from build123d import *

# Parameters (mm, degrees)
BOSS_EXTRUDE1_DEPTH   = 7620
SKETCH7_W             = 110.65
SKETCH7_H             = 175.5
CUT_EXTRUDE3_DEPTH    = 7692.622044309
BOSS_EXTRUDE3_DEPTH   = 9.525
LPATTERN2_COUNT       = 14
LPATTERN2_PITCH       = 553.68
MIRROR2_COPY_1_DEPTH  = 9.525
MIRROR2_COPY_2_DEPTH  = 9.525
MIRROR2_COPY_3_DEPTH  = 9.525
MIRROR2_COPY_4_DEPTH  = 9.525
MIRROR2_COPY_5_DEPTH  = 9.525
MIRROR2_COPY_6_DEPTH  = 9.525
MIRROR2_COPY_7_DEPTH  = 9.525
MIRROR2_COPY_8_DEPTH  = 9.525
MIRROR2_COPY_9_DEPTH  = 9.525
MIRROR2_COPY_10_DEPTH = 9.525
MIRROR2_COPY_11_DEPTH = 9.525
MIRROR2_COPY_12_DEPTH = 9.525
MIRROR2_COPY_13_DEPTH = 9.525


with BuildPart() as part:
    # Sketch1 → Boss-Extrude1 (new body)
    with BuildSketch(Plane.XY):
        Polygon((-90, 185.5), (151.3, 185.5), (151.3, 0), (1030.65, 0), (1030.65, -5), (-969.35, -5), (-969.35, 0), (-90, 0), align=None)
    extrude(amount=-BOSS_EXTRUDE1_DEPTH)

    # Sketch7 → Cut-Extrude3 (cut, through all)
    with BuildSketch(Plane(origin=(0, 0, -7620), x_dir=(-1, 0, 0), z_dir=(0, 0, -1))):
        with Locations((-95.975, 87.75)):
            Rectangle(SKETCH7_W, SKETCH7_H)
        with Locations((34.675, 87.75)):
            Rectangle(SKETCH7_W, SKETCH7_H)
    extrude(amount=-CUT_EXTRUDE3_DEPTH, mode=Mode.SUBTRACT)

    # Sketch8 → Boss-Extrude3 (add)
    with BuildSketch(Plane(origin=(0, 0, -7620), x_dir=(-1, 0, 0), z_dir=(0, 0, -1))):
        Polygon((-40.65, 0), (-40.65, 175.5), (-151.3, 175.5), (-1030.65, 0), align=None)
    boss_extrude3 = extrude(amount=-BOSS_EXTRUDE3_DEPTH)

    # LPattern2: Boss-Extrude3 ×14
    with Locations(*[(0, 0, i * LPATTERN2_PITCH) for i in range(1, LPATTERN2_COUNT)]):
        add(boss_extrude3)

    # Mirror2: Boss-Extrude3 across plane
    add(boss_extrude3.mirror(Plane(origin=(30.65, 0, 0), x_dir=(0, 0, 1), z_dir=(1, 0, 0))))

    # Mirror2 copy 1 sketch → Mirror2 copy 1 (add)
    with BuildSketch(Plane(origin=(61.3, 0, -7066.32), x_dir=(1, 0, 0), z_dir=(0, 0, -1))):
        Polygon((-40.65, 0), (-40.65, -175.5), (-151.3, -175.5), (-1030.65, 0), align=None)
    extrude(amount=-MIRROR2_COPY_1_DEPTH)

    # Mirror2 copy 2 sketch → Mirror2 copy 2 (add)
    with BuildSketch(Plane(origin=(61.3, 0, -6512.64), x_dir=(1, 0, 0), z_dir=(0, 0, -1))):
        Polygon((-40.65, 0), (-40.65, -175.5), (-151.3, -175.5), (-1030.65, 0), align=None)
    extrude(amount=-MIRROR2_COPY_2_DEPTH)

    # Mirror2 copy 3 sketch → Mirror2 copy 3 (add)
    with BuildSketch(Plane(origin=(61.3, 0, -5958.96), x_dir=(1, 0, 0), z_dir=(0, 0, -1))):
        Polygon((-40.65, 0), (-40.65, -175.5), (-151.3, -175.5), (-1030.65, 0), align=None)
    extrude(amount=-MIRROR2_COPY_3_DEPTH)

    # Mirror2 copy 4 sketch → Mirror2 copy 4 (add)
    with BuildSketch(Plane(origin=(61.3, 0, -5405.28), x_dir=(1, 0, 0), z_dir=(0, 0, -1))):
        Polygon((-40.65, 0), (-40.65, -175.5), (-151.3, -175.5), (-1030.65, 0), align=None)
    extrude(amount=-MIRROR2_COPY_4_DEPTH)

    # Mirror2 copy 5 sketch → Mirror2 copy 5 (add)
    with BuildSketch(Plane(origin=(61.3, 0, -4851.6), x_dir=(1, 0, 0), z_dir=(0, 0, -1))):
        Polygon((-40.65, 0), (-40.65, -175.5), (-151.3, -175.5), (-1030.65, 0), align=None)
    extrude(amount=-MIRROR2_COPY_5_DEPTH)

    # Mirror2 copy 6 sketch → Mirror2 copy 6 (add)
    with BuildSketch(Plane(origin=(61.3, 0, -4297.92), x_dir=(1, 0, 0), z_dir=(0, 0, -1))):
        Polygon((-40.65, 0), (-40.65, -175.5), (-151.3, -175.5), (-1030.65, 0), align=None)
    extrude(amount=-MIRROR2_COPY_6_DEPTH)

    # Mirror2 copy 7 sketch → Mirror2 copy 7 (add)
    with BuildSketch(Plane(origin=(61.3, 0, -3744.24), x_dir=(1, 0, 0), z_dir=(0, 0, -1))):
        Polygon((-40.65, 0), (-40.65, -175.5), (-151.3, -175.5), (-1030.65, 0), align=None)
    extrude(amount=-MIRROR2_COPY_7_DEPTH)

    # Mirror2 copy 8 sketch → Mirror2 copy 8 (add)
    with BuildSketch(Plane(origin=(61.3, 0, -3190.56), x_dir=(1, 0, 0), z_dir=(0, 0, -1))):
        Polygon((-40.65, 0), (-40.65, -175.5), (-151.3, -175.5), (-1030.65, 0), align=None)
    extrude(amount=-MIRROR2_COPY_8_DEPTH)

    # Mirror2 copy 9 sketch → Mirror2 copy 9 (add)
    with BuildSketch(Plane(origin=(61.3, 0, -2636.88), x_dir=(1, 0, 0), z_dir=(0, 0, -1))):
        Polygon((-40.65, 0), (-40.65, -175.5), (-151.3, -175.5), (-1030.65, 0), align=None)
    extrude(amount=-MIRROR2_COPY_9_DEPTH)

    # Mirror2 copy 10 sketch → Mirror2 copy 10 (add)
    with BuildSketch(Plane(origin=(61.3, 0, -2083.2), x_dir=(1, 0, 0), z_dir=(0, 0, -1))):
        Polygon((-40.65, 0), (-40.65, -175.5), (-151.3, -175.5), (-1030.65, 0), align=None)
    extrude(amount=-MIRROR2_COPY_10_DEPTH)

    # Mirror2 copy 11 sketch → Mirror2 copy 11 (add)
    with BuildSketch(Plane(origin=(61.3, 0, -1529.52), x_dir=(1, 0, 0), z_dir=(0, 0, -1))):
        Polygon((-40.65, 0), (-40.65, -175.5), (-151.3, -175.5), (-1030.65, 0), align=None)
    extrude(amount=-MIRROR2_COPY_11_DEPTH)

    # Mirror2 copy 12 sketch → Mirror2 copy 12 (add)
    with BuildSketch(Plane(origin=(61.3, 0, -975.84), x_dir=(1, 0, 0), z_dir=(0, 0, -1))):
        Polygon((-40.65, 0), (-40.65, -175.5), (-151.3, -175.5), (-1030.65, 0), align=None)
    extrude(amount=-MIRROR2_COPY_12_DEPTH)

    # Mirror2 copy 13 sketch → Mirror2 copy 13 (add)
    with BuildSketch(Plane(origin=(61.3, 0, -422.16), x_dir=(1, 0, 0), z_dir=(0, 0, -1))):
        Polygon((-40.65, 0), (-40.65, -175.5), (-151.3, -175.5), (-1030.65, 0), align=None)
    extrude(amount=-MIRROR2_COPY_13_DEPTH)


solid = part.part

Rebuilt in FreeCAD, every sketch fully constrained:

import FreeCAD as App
import Part
import Sketcher

V = App.Vector


def add_polygon(sketch, points):
    """Adds a closed chain of lines whose ends are joined by coincident constraints."""
    first, n = sketch.GeometryCount, len(points)
    for a, b in zip(points, points[1:] + points[:1]):
        sketch.addGeometry(Part.LineSegment(App.Vector(*a, 0), App.Vector(*b, 0)), False)
    for i in range(n):
        sketch.addConstraint(Sketcher.Constraint("Coincident", first + i, 2, first + (i + 1) % n, 1))

doc = App.newDocument("Part")
body = doc.addObject("PartDesign::Body", "Body")

# Sketch on XY plane
sketch1 = doc.addObject("Sketcher::SketchObject", "Sketch")
body.addObject(sketch1)
sketch1.AttachmentSupport = (doc.XY_Plane, [""])
sketch1.MapMode = "FlatFace"
add_polygon(sketch1, [(151, 186), (-90, 186), (-90, 0), (-969, 0), (-969, -5), (1031, -5), (1031, 0), (151, 0)])  # lines 0-7
sketch1.addConstraint([
    Sketcher.Constraint("Horizontal", 0),
    Sketcher.Constraint("Vertical", 1),
    Sketcher.Constraint("Horizontal", 2),
    Sketcher.Constraint("Vertical", 3),
    Sketcher.Constraint("Horizontal", 4),
    Sketcher.Constraint("Vertical", 5),
    Sketcher.Constraint("Horizontal", 6),
    Sketcher.Constraint("Vertical", 7),
    Sketcher.Constraint("PointOnObject", 1, 2, -1),
    Sketcher.Constraint("PointOnObject", 5, 2, -1),
    Sketcher.Constraint("Equal", 2, 6),
    Sketcher.Constraint("DistanceX", 4, 1, 4, 2, 2000.0),
    Sketcher.Constraint("DistanceY", 3, 2, 3, 1, 5.0),
    Sketcher.Constraint("DistanceX", 0, 2, 0, 1, 241.3),
    Sketcher.Constraint("DistanceY", 1, 2, 1, 1, 185.5),
    Sketcher.Constraint("DistanceX", 0, 2, -1, 1, 90.0),
])
pad1 = doc.addObject("PartDesign::Pad", "Pad")
body.addObject(pad1)
pad1.Profile = sketch1
pad1.Length = 7620
pad1.Reversed = True

# Sketch on XY plane
sketch2 = doc.addObject("Sketcher::SketchObject", "Sketch001")
body.addObject(sketch2)
sketch2.AttachmentSupport = (doc.XY_Plane, [""])
sketch2.MapMode = "FlatFace"
sketch2.AttachmentOffset = App.Placement(V(0, 0, -7620), App.Rotation())
add_polygon(sketch2, [(151, 176), (151, 0), (41, 0), (41, 176)])  # lines 0-3
add_polygon(sketch2, [(21, 176), (21, 0), (-90, 0), (-90, 176)])  # lines 4-7
sketch2.addConstraint([
    Sketcher.Constraint("Vertical", 0),
    Sketcher.Constraint("Horizontal", 1),
    Sketcher.Constraint("Vertical", 2),
    Sketcher.Constraint("Horizontal", 3),
    Sketcher.Constraint("Vertical", 4),
    Sketcher.Constraint("Horizontal", 5),
    Sketcher.Constraint("Vertical", 6),
    Sketcher.Constraint("Horizontal", 7),
    Sketcher.Constraint("PointOnObject", 0, 2, -1),
    Sketcher.Constraint("PointOnObject", 4, 2, -1),
    Sketcher.Constraint("Horizontal", 3, 2, 6, 2),
    Sketcher.Constraint("Equal", 3, 5),
    Sketcher.Constraint("DistanceY", 0, 2, 0, 1, 175.5),
    Sketcher.Constraint("DistanceX", 5, 2, -1, 1, 90.0),
    Sketcher.Constraint("DistanceX", 4, 2, 1, 2, 20.0),
    Sketcher.Constraint("DistanceX", 1, 2, 1, 1, 110.65),
])
pocket1 = doc.addObject("PartDesign::Pocket", "Pocket")
body.addObject(pocket1)
pocket1.Profile = sketch2
pocket1.Type = "ThroughAll"
pocket1.Reversed = True

# Sketch on XY plane
sketch3 = doc.addObject("Sketcher::SketchObject", "Sketch002")
body.addObject(sketch3)
sketch3.AttachmentSupport = (doc.XY_Plane, [""])
sketch3.MapMode = "FlatFace"
sketch3.AttachmentOffset = App.Placement(V(0, 0, -7620), App.Rotation())
add_polygon(sketch3, [(41, 0), (41, 176), (151, 176), (1031, 0)])  # lines 0-3
sketch3.addConstraint([
    Sketcher.Constraint("Vertical", 0),
    Sketcher.Constraint("Horizontal", 1),
    Sketcher.Constraint("Horizontal", 3),
    Sketcher.Constraint("PointOnObject", 2, 2, -1),
    Sketcher.Constraint("DistanceX", 3, 2, 3, 1, 990.0),
    Sketcher.Constraint("DistanceY", 0, 1, 0, 2, 175.5),
    Sketcher.Constraint("DistanceX", 1, 1, 1, 2, 110.65),
    Sketcher.Constraint("DistanceX", -1, 1, 1, 2, 151.3),
])
pad2 = doc.addObject("PartDesign::Pad", "Pad001")
body.addObject(pad2)
pad2.Profile = sketch3
pad2.Length = 9.525
doc.recompute()

linearpattern = doc.addObject("PartDesign::LinearPattern", "LinearPattern")
body.addObject(linearpattern)
linearpattern.Originals = [pad2]
linearpattern.Direction = (doc.Z_Axis, [""])
linearpattern.Mode = "offset"
linearpattern.Offset = 553.68
linearpattern.Occurrences = 14
body.Tip = linearpattern
doc.recompute()

datumplane = doc.addObject("PartDesign::Plane", "DatumPlane")
body.addObject(datumplane)
datumplane.AttachmentSupport = (doc.YZ_Plane, [""])
datumplane.MapMode = "FlatFace"
datumplane.AttachmentOffset = App.Placement(V(0, 0, 30.65), App.Rotation())
mirrored = doc.addObject("PartDesign::Mirrored", "Mirrored")
body.addObject(mirrored)
mirrored.Originals = [pad2]
mirrored.MirrorPlane = (datumplane, [""])
body.Tip = mirrored

# Sketch on XY plane
sketch4 = doc.addObject("Sketcher::SketchObject", "Sketch003")
body.addObject(sketch4)
sketch4.AttachmentSupport = (doc.XY_Plane, [""])
sketch4.MapMode = "FlatFace"
sketch4.AttachmentOffset = App.Placement(V(0, 0, -7066.32), App.Rotation())
add_polygon(sketch4, [(21, 176), (21, 0), (-969, 0), (-90, 176)])  # lines 0-3
sketch4.addConstraint([
    Sketcher.Constraint("Vertical", 0),
    Sketcher.Constraint("Horizontal", 1),
    Sketcher.Constraint("Horizontal", 3),
    Sketcher.Constraint("PointOnObject", 0, 2, -1),
    Sketcher.Constraint("DistanceX", 1, 2, 1, 1, 990.0),
    Sketcher.Constraint("DistanceY", 0, 2, 0, 1, 175.5),
    Sketcher.Constraint("DistanceX", 2, 2, -1, 1, 90.0),
    Sketcher.Constraint("DistanceX", 3, 1, 3, 2, 110.65),
])
pad3 = doc.addObject("PartDesign::Pad", "Pad002")
body.addObject(pad3)
pad3.Profile = sketch4
pad3.Length = 9.525

# Sketch on XY plane
sketch5 = doc.addObject("Sketcher::SketchObject", "Sketch004")
body.addObject(sketch5)
sketch5.AttachmentSupport = (doc.XY_Plane, [""])
sketch5.MapMode = "FlatFace"
sketch5.AttachmentOffset = App.Placement(V(0, 0, -6512.64), App.Rotation())
add_polygon(sketch5, [(21, 176), (21, 0), (-969, 0), (-90, 176)])  # lines 0-3
sketch5.addConstraint([
    Sketcher.Constraint("Vertical", 0),
    Sketcher.Constraint("Horizontal", 1),
    Sketcher.Constraint("Horizontal", 3),
    Sketcher.Constraint("PointOnObject", 0, 2, -1),
    Sketcher.Constraint("DistanceX", 1, 2, 1, 1, 990.0),
    Sketcher.Constraint("DistanceY", 0, 2, 0, 1, 175.5),
    Sketcher.Constraint("DistanceX", 2, 2, -1, 1, 90.0),
    Sketcher.Constraint("DistanceX", 3, 1, 3, 2, 110.65),
])
pad4 = doc.addObject("PartDesign::Pad", "Pad003")
body.addObject(pad4)
pad4.Profile = sketch5
pad4.Length = 9.525

# Sketch on XY plane
sketch6 = doc.addObject("Sketcher::SketchObject", "Sketch005")
body.addObject(sketch6)
sketch6.AttachmentSupport = (doc.XY_Plane, [""])
sketch6.MapMode = "FlatFace"
sketch6.AttachmentOffset = App.Placement(V(0, 0, -5958.96), App.Rotation())
add_polygon(sketch6, [(21, 176), (21, 0), (-969, 0), (-90, 176)])  # lines 0-3
sketch6.addConstraint([
    Sketcher.Constraint("Vertical", 0),
    Sketcher.Constraint("Horizontal", 1),
    Sketcher.Constraint("Horizontal", 3),
    Sketcher.Constraint("PointOnObject", 0, 2, -1),
    Sketcher.Constraint("DistanceX", 1, 2, 1, 1, 990.0),
    Sketcher.Constraint("DistanceY", 0, 2, 0, 1, 175.5),
    Sketcher.Constraint("DistanceX", 2, 2, -1, 1, 90.0),
    Sketcher.Constraint("DistanceX", 3, 1, 3, 2, 110.65),
])
pad5 = doc.addObject("PartDesign::Pad", "Pad004")
body.addObject(pad5)
pad5.Profile = sketch6
pad5.Length = 9.525

# Sketch on XY plane
sketch7 = doc.addObject("Sketcher::SketchObject", "Sketch006")
body.addObject(sketch7)
sketch7.AttachmentSupport = (doc.XY_Plane, [""])
sketch7.MapMode = "FlatFace"
sketch7.AttachmentOffset = App.Placement(V(0, 0, -5405.28), App.Rotation())
add_polygon(sketch7, [(21, 176), (21, 0), (-969, 0), (-90, 176)])  # lines 0-3
sketch7.addConstraint([
    Sketcher.Constraint("Vertical", 0),
    Sketcher.Constraint("Horizontal", 1),
    Sketcher.Constraint("Horizontal", 3),
    Sketcher.Constraint("PointOnObject", 0, 2, -1),
    Sketcher.Constraint("DistanceX", 1, 2, 1, 1, 990.0),
    Sketcher.Constraint("DistanceY", 0, 2, 0, 1, 175.5),
    Sketcher.Constraint("DistanceX", 2, 2, -1, 1, 90.0),
    Sketcher.Constraint("DistanceX", 3, 1, 3, 2, 110.65),
])
pad6 = doc.addObject("PartDesign::Pad", "Pad005")
body.addObject(pad6)
pad6.Profile = sketch7
pad6.Length = 9.525

# Sketch on XY plane
sketch8 = doc.addObject("Sketcher::SketchObject", "Sketch007")
body.addObject(sketch8)
sketch8.AttachmentSupport = (doc.XY_Plane, [""])
sketch8.MapMode = "FlatFace"
sketch8.AttachmentOffset = App.Placement(V(0, 0, -4851.6), App.Rotation())
add_polygon(sketch8, [(21, 176), (21, 0), (-969, 0), (-90, 176)])  # lines 0-3
sketch8.addConstraint([
    Sketcher.Constraint("Vertical", 0),
    Sketcher.Constraint("Horizontal", 1),
    Sketcher.Constraint("Horizontal", 3),
    Sketcher.Constraint("PointOnObject", 0, 2, -1),
    Sketcher.Constraint("DistanceX", 1, 2, 1, 1, 990.0),
    Sketcher.Constraint("DistanceY", 0, 2, 0, 1, 175.5),
    Sketcher.Constraint("DistanceX", 2, 2, -1, 1, 90.0),
    Sketcher.Constraint("DistanceX", 3, 1, 3, 2, 110.65),
])
pad7 = doc.addObject("PartDesign::Pad", "Pad006")
body.addObject(pad7)
pad7.Profile = sketch8
pad7.Length = 9.525

# Sketch on XY plane
sketch9 = doc.addObject("Sketcher::SketchObject", "Sketch008")
body.addObject(sketch9)
sketch9.AttachmentSupport = (doc.XY_Plane, [""])
sketch9.MapMode = "FlatFace"
sketch9.AttachmentOffset = App.Placement(V(0, 0, -4297.92), App.Rotation())
add_polygon(sketch9, [(21, 176), (21, 0), (-969, 0), (-90, 176)])  # lines 0-3
sketch9.addConstraint([
    Sketcher.Constraint("Vertical", 0),
    Sketcher.Constraint("Horizontal", 1),
    Sketcher.Constraint("Horizontal", 3),
    Sketcher.Constraint("PointOnObject", 0, 2, -1),
    Sketcher.Constraint("DistanceX", 1, 2, 1, 1, 990.0),
    Sketcher.Constraint("DistanceY", 0, 2, 0, 1, 175.5),
    Sketcher.Constraint("DistanceX", 2, 2, -1, 1, 90.0),
    Sketcher.Constraint("DistanceX", 3, 1, 3, 2, 110.65),
])
pad8 = doc.addObject("PartDesign::Pad", "Pad007")
body.addObject(pad8)
pad8.Profile = sketch9
pad8.Length = 9.525

# Sketch on XY plane
sketch10 = doc.addObject("Sketcher::SketchObject", "Sketch009")
body.addObject(sketch10)
sketch10.AttachmentSupport = (doc.XY_Plane, [""])
sketch10.MapMode = "FlatFace"
sketch10.AttachmentOffset = App.Placement(V(0, 0, -3744.24), App.Rotation())
add_polygon(sketch10, [(21, 176), (21, 0), (-969, 0), (-90, 176)])  # lines 0-3
sketch10.addConstraint([
    Sketcher.Constraint("Vertical", 0),
    Sketcher.Constraint("Horizontal", 1),
    Sketcher.Constraint("Horizontal", 3),
    Sketcher.Constraint("PointOnObject", 0, 2, -1),
    Sketcher.Constraint("DistanceX", 1, 2, 1, 1, 990.0),
    Sketcher.Constraint("DistanceY", 0, 2, 0, 1, 175.5),
    Sketcher.Constraint("DistanceX", 2, 2, -1, 1, 90.0),
    Sketcher.Constraint("DistanceX", 3, 1, 3, 2, 110.65),
])
pad9 = doc.addObject("PartDesign::Pad", "Pad008")
body.addObject(pad9)
pad9.Profile = sketch10
pad9.Length = 9.525

# Sketch on XY plane
sketch11 = doc.addObject("Sketcher::SketchObject", "Sketch010")
body.addObject(sketch11)
sketch11.AttachmentSupport = (doc.XY_Plane, [""])
sketch11.MapMode = "FlatFace"
sketch11.AttachmentOffset = App.Placement(V(0, 0, -3190.56), App.Rotation())
add_polygon(sketch11, [(21, 176), (21, 0), (-969, 0), (-90, 176)])  # lines 0-3
sketch11.addConstraint([
    Sketcher.Constraint("Vertical", 0),
    Sketcher.Constraint("Horizontal", 1),
    Sketcher.Constraint("Horizontal", 3),
    Sketcher.Constraint("PointOnObject", 0, 2, -1),
    Sketcher.Constraint("DistanceX", 1, 2, 1, 1, 990.0),
    Sketcher.Constraint("DistanceY", 0, 2, 0, 1, 175.5),
    Sketcher.Constraint("DistanceX", 2, 2, -1, 1, 90.0),
    Sketcher.Constraint("DistanceX", 3, 1, 3, 2, 110.65),
])
pad10 = doc.addObject("PartDesign::Pad", "Pad009")
body.addObject(pad10)
pad10.Profile = sketch11
pad10.Length = 9.525

# Sketch on XY plane
sketch12 = doc.addObject("Sketcher::SketchObject", "Sketch011")
body.addObject(sketch12)
sketch12.AttachmentSupport = (doc.XY_Plane, [""])
sketch12.MapMode = "FlatFace"
sketch12.AttachmentOffset = App.Placement(V(0, 0, -2636.88), App.Rotation())
add_polygon(sketch12, [(21, 176), (21, 0), (-969, 0), (-90, 176)])  # lines 0-3
sketch12.addConstraint([
    Sketcher.Constraint("Vertical", 0),
    Sketcher.Constraint("Horizontal", 1),
    Sketcher.Constraint("Horizontal", 3),
    Sketcher.Constraint("PointOnObject", 0, 2, -1),
    Sketcher.Constraint("DistanceX", 1, 2, 1, 1, 990.0),
    Sketcher.Constraint("DistanceY", 0, 2, 0, 1, 175.5),
    Sketcher.Constraint("DistanceX", 2, 2, -1, 1, 90.0),
    Sketcher.Constraint("DistanceX", 3, 1, 3, 2, 110.65),
])
pad11 = doc.addObject("PartDesign::Pad", "Pad010")
body.addObject(pad11)
pad11.Profile = sketch12
pad11.Length = 9.525

# Sketch on XY plane
sketch13 = doc.addObject("Sketcher::SketchObject", "Sketch012")
body.addObject(sketch13)
sketch13.AttachmentSupport = (doc.XY_Plane, [""])
sketch13.MapMode = "FlatFace"
sketch13.AttachmentOffset = App.Placement(V(0, 0, -2083.2), App.Rotation())
add_polygon(sketch13, [(21, 176), (21, 0), (-969, 0), (-90, 176)])  # lines 0-3
sketch13.addConstraint([
    Sketcher.Constraint("Vertical", 0),
    Sketcher.Constraint("Horizontal", 1),
    Sketcher.Constraint("Horizontal", 3),
    Sketcher.Constraint("PointOnObject", 0, 2, -1),
    Sketcher.Constraint("DistanceX", 1, 2, 1, 1, 990.0),
    Sketcher.Constraint("DistanceY", 0, 2, 0, 1, 175.5),
    Sketcher.Constraint("DistanceX", 2, 2, -1, 1, 90.0),
    Sketcher.Constraint("DistanceX", 3, 1, 3, 2, 110.65),
])
pad12 = doc.addObject("PartDesign::Pad", "Pad011")
body.addObject(pad12)
pad12.Profile = sketch13
pad12.Length = 9.525

# Sketch on XY plane
sketch14 = doc.addObject("Sketcher::SketchObject", "Sketch013")
body.addObject(sketch14)
sketch14.AttachmentSupport = (doc.XY_Plane, [""])
sketch14.MapMode = "FlatFace"
sketch14.AttachmentOffset = App.Placement(V(0, 0, -1529.52), App.Rotation())
add_polygon(sketch14, [(21, 176), (21, 0), (-969, 0), (-90, 176)])  # lines 0-3
sketch14.addConstraint([
    Sketcher.Constraint("Vertical", 0),
    Sketcher.Constraint("Horizontal", 1),
    Sketcher.Constraint("Horizontal", 3),
    Sketcher.Constraint("PointOnObject", 0, 2, -1),
    Sketcher.Constraint("DistanceX", 1, 2, 1, 1, 990.0),
    Sketcher.Constraint("DistanceY", 0, 2, 0, 1, 175.5),
    Sketcher.Constraint("DistanceX", 2, 2, -1, 1, 90.0),
    Sketcher.Constraint("DistanceX", 3, 1, 3, 2, 110.65),
])
pad13 = doc.addObject("PartDesign::Pad", "Pad012")
body.addObject(pad13)
pad13.Profile = sketch14
pad13.Length = 9.525

# Sketch on XY plane
sketch15 = doc.addObject("Sketcher::SketchObject", "Sketch014")
body.addObject(sketch15)
sketch15.AttachmentSupport = (doc.XY_Plane, [""])
sketch15.MapMode = "FlatFace"
sketch15.AttachmentOffset = App.Placement(V(0, 0, -975.84), App.Rotation())
add_polygon(sketch15, [(21, 176), (21, 0), (-969, 0), (-90, 176)])  # lines 0-3
sketch15.addConstraint([
    Sketcher.Constraint("Vertical", 0),
    Sketcher.Constraint("Horizontal", 1),
    Sketcher.Constraint("Horizontal", 3),
    Sketcher.Constraint("PointOnObject", 0, 2, -1),
    Sketcher.Constraint("DistanceX", 1, 2, 1, 1, 990.0),
    Sketcher.Constraint("DistanceY", 0, 2, 0, 1, 175.5),
    Sketcher.Constraint("DistanceX", 2, 2, -1, 1, 90.0),
    Sketcher.Constraint("DistanceX", 3, 1, 3, 2, 110.65),
])
pad14 = doc.addObject("PartDesign::Pad", "Pad013")
body.addObject(pad14)
pad14.Profile = sketch15
pad14.Length = 9.525

# Sketch on XY plane
sketch16 = doc.addObject("Sketcher::SketchObject", "Sketch015")
body.addObject(sketch16)
sketch16.AttachmentSupport = (doc.XY_Plane, [""])
sketch16.MapMode = "FlatFace"
sketch16.AttachmentOffset = App.Placement(V(0, 0, -422.16), App.Rotation())
add_polygon(sketch16, [(21, 176), (21, 0), (-969, 0), (-90, 176)])  # lines 0-3
sketch16.addConstraint([
    Sketcher.Constraint("Vertical", 0),
    Sketcher.Constraint("Horizontal", 1),
    Sketcher.Constraint("Horizontal", 3),
    Sketcher.Constraint("PointOnObject", 0, 2, -1),
    Sketcher.Constraint("DistanceX", 1, 2, 1, 1, 990.0),
    Sketcher.Constraint("DistanceY", 0, 2, 0, 1, 175.5),
    Sketcher.Constraint("DistanceX", 2, 2, -1, 1, 90.0),
    Sketcher.Constraint("DistanceX", 3, 1, 3, 2, 110.65),
])
pad15 = doc.addObject("PartDesign::Pad", "Pad014")
body.addObject(pad15)
pad15.Profile = sketch16
pad15.Length = 9.525

doc.recompute()
